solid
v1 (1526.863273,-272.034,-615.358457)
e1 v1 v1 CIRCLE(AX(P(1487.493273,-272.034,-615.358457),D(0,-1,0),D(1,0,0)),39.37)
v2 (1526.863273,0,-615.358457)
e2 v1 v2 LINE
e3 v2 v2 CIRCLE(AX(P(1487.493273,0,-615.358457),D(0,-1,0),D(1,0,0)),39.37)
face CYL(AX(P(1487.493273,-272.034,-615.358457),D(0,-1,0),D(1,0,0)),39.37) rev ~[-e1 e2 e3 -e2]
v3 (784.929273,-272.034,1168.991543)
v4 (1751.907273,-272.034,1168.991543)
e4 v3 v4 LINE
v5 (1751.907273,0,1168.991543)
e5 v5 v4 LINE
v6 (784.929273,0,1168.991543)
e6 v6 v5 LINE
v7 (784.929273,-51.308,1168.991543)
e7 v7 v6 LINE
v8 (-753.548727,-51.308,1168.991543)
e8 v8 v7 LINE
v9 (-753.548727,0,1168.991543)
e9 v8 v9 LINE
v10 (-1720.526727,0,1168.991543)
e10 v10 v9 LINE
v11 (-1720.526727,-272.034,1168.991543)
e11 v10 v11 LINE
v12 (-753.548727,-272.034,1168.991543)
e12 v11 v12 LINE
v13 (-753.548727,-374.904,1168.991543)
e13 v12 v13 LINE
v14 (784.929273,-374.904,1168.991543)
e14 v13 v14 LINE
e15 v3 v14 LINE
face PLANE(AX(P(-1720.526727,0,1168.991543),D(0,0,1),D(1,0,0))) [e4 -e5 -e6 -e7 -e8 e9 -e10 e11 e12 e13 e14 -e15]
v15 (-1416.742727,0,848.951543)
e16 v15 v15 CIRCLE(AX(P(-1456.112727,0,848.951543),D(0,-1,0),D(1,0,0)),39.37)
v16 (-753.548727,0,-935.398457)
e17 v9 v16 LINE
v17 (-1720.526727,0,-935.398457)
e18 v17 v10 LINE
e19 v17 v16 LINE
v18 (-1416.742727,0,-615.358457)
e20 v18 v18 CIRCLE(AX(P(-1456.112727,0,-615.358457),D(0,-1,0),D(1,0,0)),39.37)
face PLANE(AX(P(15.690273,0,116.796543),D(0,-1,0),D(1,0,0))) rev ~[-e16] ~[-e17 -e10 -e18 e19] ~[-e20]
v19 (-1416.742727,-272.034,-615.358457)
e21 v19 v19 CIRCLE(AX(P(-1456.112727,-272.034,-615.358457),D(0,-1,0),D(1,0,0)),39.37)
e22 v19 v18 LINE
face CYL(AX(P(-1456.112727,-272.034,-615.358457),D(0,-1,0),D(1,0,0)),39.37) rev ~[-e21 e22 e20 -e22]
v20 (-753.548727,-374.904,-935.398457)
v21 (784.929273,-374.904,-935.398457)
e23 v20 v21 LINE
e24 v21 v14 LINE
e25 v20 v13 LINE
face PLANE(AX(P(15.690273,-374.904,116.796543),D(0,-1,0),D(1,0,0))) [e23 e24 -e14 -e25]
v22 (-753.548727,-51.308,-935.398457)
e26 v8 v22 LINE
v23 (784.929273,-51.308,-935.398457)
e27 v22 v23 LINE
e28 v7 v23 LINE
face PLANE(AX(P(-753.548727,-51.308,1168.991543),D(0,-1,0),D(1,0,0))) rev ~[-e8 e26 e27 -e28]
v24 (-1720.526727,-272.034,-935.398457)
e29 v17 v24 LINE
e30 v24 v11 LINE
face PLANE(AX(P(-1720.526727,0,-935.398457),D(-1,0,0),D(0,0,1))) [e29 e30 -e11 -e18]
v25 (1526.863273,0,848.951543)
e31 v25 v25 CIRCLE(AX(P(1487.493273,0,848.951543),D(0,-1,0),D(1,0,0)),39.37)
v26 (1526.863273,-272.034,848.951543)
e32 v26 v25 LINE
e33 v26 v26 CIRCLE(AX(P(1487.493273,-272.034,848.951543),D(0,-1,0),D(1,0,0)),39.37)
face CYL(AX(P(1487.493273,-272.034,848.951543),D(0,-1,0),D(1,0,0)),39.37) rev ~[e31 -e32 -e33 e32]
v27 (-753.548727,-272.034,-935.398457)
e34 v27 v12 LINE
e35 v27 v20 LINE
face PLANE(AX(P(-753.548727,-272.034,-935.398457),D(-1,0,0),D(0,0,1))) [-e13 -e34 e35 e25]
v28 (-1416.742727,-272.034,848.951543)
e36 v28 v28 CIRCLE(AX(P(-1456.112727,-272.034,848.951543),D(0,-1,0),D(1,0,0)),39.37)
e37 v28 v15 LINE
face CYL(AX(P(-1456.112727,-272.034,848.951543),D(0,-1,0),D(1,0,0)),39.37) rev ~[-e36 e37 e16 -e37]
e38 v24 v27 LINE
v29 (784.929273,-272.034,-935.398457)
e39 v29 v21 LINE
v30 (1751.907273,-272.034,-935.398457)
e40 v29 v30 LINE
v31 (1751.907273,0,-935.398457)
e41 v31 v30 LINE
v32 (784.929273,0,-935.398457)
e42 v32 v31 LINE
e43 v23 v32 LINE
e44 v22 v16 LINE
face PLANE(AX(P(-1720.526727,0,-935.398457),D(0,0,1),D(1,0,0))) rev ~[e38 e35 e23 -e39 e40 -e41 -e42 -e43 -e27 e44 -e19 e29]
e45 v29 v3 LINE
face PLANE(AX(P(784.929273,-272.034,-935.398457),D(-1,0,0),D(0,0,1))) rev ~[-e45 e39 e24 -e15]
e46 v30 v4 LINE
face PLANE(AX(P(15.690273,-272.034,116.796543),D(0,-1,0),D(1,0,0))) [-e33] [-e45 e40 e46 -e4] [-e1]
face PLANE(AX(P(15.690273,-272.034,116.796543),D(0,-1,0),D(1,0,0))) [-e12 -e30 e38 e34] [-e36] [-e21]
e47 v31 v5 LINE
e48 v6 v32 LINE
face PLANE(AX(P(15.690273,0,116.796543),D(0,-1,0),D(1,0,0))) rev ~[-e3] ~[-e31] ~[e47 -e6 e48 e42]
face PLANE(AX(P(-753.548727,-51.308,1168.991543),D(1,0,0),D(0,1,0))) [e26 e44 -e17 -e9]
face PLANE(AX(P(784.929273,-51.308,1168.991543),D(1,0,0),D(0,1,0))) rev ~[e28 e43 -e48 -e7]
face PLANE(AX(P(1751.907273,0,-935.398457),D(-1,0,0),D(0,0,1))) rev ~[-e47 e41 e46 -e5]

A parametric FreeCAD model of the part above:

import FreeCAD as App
import Part
import Sketcher

V = App.Vector
Q = App.Units.Quantity

doc = App.newDocument("Part")
params = doc.addObject("Spreadsheet::Sheet", "Params")
for row, (alias, value) in enumerate([
    ("sketch1_width", "136.71 in"),
    ("sketch1_height", "82.85 in"),
    ("pad1_length", "10.71 in"),
    ("sketch2_width", "60.57 in"),
    ("sketch2_height", "82.85 in"),
    ("pad2_length", "4.05 in"),
    ("sketch3_width", "60.57 in"),
    ("sketch3_height", "2.02 in"),
    ("sketch4_diameter", "3.1 in"),
], start=1):
    params.set(f"A{row}", alias)
    params.set(f"B{row}", "=" + value)
    params.setAlias(f"B{row}", alias)

body = doc.addObject("PartDesign::Body", "Body")

# Sketch on XZ plane
sketch1 = body.newObject("Sketcher::SketchObject", "Sketch")
sketch1.AttachmentSupport = (doc.getObject("XZ_Plane"), [""])
sketch1.MapMode = "FlatFace"
sketch1.addGeometry([
    Part.LineSegment(V(-1720.526727, 1168.991543, 0), V(-1720.526727, -935.398457, 0)),
    Part.LineSegment(V(-1720.526727, -935.398457, 0), V(1751.907273, -935.398457, 0)),
    Part.LineSegment(V(1751.907273, -935.398457, 0), V(1751.907273, 1168.991543, 0)),
    Part.LineSegment(V(1751.907273, 1168.991543, 0), V(-1720.526727, 1168.991543, 0)),
], False)
sketch1.addConstraint([
    Sketcher.Constraint("Coincident", 0, 2, 1, 1),
    Sketcher.Constraint("Coincident", 1, 2, 2, 1),
    Sketcher.Constraint("Coincident", 2, 2, 3, 1),
    Sketcher.Constraint("Coincident", 3, 2, 0, 1),
    Sketcher.Constraint("Vertical", 0),
    Sketcher.Constraint("Horizontal", 1),
    Sketcher.Constraint("Vertical", 2),
    Sketcher.Constraint("Horizontal", 3),
    Sketcher.Constraint("DistanceX", 1, 1, 1, 2, Q("136.71 in")),
    Sketcher.Constraint("DistanceY", 0, 2, 0, 1, Q("82.85 in")),
    Sketcher.Constraint("DistanceX", 0, 2, -1, 1, Q("1720.526727 mm")),
    Sketcher.Constraint("DistanceY", 0, 2, -1, 1, Q("935.398457 mm")),
])
sketch1.setExpression("Constraints[8]", "Params.sketch1_width")
sketch1.setExpression("Constraints[9]", "Params.sketch1_height")
pad1 = body.newObject("PartDesign::Pad", "Pad")
pad1.Profile = sketch1
pad1.setExpression("Length", "Params.pad1_length")

# Sketch on XZ plane
sketch2 = body.newObject("Sketcher::SketchObject", "Sketch001")
sketch2.AttachmentSupport = (doc.getObject("XZ_Plane"), [""])
sketch2.MapMode = "FlatFace"
sketch2.AttachmentOffset = App.Placement(V(0, 0, 10.71 * 25.4), App.Rotation())
sketch2.addGeometry([
    Part.LineSegment(V(-753.548727, 1168.991543, 0), V(-753.548727, -935.398457, 0)),
    Part.LineSegment(V(-753.548727, -935.398457, 0), V(784.929273, -935.398457, 0)),
    Part.LineSegment(V(784.929273, -935.398457, 0), V(784.929273, 1168.991543, 0)),
    Part.LineSegment(V(784.929273, 1168.991543, 0), V(-753.548727, 1168.991543, 0)),
], False)
sketch2.addConstraint([
    Sketcher.Constraint("Coincident", 0, 2, 1, 1),
    Sketcher.Constraint("Coincident", 1, 2, 2, 1),
    Sketcher.Constraint("Coincident", 2, 2, 3, 1),
    Sketcher.Constraint("Coincident", 3, 2, 0, 1),
    Sketcher.Constraint("Vertical", 0),
    Sketcher.Constraint("Horizontal", 1),
    Sketcher.Constraint("Vertical", 2),
    Sketcher.Constraint("Horizontal", 3),
    Sketcher.Constraint("DistanceX", 1, 1, 1, 2, Q("60.57 in")),
    Sketcher.Constraint("DistanceY", 0, 2, 0, 1, Q("82.85 in")),
    Sketcher.Constraint("DistanceX", 0, 2, -1, 1, Q("753.548727 mm")),
    Sketcher.Constraint("DistanceY", 0, 2, -1, 1, Q("935.398457 mm")),
])
sketch2.setExpression("Constraints[8]", "Params.sketch2_width")
sketch2.setExpression("Constraints[9]", "Params.sketch2_height")
pad2 = body.newObject("PartDesign::Pad", "Pad001")
pad2.Profile = sketch2
pad2.setExpression("Length", "Params.pad2_length")

# Sketch on XY plane
sketch3 = body.newObject("Sketcher::SketchObject", "Sketch002")
sketch3.AttachmentSupport = (doc.getObject("XY_Plane"), [""])
sketch3.MapMode = "FlatFace"
sketch3.AttachmentOffset = App.Placement(V(0, 0, 1168.991543), App.Rotation())
sketch3.addGeometry([
    Part.LineSegment(V(-753.548727, 0, 0), V(-753.548727, -51.308, 0)),
    Part.LineSegment(V(-753.548727, -51.308, 0), V(784.929273, -51.308, 0)),
    Part.LineSegment(V(784.929273, -51.308, 0), V(784.929273, 0, 0)),
    Part.LineSegment(V(784.929273, 0, 0), V(-753.548727, 0, 0)),
], False)
sketch3.addConstraint([
    Sketcher.Constraint("Coincident", 0, 2, 1, 1),
    Sketcher.Constraint("Coincident", 1, 2, 2, 1),
    Sketcher.Constraint("Coincident", 2, 2, 3, 1),
    Sketcher.Constraint("Coincident", 3, 2, 0, 1),
    Sketcher.Constraint("Vertical", 0),
    Sketcher.Constraint("Horizontal", 1),
    Sketcher.Constraint("Vertical", 2),
    Sketcher.Constraint("Horizontal", 3),
    Sketcher.Constraint("PointOnObject", 2, 2, -1),
    Sketcher.Constraint("DistanceX", 1, 1, 1, 2, Q("60.57 in")),
    Sketcher.Constraint("DistanceY", 0, 2, 0, 1, Q("2.02 in")),
    Sketcher.Constraint("DistanceX", 0, 2, -1, 1, Q("753.548727 mm")),
])
sketch3.setExpression("Constraints[9]", "Params.sketch3_width")
sketch3.setExpression("Constraints[10]", "Params.sketch3_height")
pocket1 = body.newObject("PartDesign::Pocket", "Pocket")
pocket1.Profile = sketch3
pocket1.Type = "ThroughAll"

# Sketch on XZ plane
sketch4 = body.newObject("Sketcher::SketchObject", "Sketch003")
sketch4.AttachmentSupport = (doc.getObject("XZ_Plane"), [""])
sketch4.MapMode = "FlatFace"
sketch4.AttachmentOffset = App.Placement(V(0, 0, 10.71 * 25.4), App.Rotation())
sketch4.addGeometry([
    Part.Circle(V(-1456.112727, 848.951543, 0), V(0, 0, 1), 39.37),
    Part.Circle(V(-1456.112727, -615.358457, 0), V(0, 0, 1), 39.37),
    Part.Circle(V(1487.493273, 848.951543, 0), V(0, 0, 1), 39.37),
    Part.Circle(V(1487.493273, -615.358457, 0), V(0, 0, 1), 39.37),
], False)
sketch4.addConstraint([
    Sketcher.Constraint("Equal", 0, 1),
    Sketcher.Constraint("Equal", 1, 2),
    Sketcher.Constraint("Equal", 2, 3),
    Sketcher.Constraint("Horizontal", 0, 3, 2, 3),
    Sketcher.Constraint("Horizontal", 1, 3, 3, 3),
    Sketcher.Constraint("Vertical", 0, 3, 1, 3),
    Sketcher.Constraint("Vertical", 2, 3, 3, 3),
    Sketcher.Constraint("Diameter", 0, Q("3.1 in")),
    Sketcher.Constraint("DistanceY", 1, 3, 0, 3, Q("57.65 in")),
    Sketcher.Constraint("DistanceX", 0, 3, 2, 3, Q("115.89 in")),
    Sketcher.Constraint("DistanceX", 0, 3, -1, 1, Q("1456.112727 mm")),
    Sketcher.Constraint("DistanceY", -1, 1, 0, 3, Q("848.951543 mm")),
])
sketch4.setExpression("Constraints[7]", "Params.sketch4_diameter")
pocket2 = body.newObject("PartDesign::Pocket", "Pocket001")
pocket2.Profile = sketch4
pocket2.Type = "ThroughAll"

doc.recompute()
